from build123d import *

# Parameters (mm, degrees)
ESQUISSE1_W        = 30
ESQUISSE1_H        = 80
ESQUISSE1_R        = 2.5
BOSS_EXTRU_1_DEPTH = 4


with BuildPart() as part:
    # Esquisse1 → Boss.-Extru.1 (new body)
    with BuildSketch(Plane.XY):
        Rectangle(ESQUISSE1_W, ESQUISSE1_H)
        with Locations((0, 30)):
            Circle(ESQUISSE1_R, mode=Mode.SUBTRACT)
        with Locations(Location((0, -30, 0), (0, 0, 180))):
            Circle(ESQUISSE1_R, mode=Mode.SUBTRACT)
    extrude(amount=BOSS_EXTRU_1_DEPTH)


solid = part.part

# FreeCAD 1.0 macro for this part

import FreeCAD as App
import Part
import Sketcher
from FreeCAD import Vector


def add_polygon(sketch, points):
    """Adds a closed chain of lines whose ends are joined by coincident constraints."""
    first, n = sketch.GeometryCount, len(points)
    for a, b in zip(points, points[1:] + points[:1]):
        sketch.addGeometry(Part.LineSegment(App.Vector(*a, 0), App.Vector(*b, 0)), False)
    for i in range(n):
        sketch.addConstraint(Sketcher.Constraint("Coincident", first + i, 2, first + (i + 1) % n, 1))

doc = App.newDocument("Part")
body = doc.addObject("PartDesign::Body", "Body")

# Sketch on XY plane
sketch1 = body.newObject("Sketcher::SketchObject", "Sketch")
sketch1.AttachmentSupport = (doc.getObject("XY_Plane"), [""])
sketch1.MapMode = "FlatFace"
add_polygon(sketch1, [(-15, 40), (-15, -40), (15, -40), (15, 40)])  # lines 0-3
sketch1.addGeometry(Part.Circle(Vector(0, -30, 0), Vector(0, 0, 1), 2.5), False)  # 4
sketch1.addGeometry(Part.Circle(Vector(0, 30, 0), Vector(0, 0, 1), 2.5), False)  # 5
sketch1.addConstraint(Sketcher.Constraint("Vertical", 0))
sketch1.addConstraint(Sketcher.Constraint("Horizontal", 1))
sketch1.addConstraint(Sketcher.Constraint("Vertical", 2))
sketch1.addConstraint(Sketcher.Constraint("Horizontal", 3))
sketch1.addConstraint(Sketcher.Constraint("Equal", 4, 5))
sketch1.addConstraint(Sketcher.Constraint("Symmetric", 4, 3, 5, 3, -1, 1))
sketch1.addConstraint(Sketcher.Constraint("Symmetric", 0, 2, 2, 2, -1, 1))
sketch1.addConstraint(Sketcher.Constraint("PointOnObject", 4, 3, -2))
sketch1.addConstraint(Sketcher.Constraint("Diameter", 4, 5.0))
sketch1.addConstraint(Sketcher.Constraint("DistanceX", 1, 1, 1, 2, 30.0))
sketch1.addConstraint(Sketcher.Constraint("DistanceY", 0, 2, 0, 1, 80.0))
sketch1.addConstraint(Sketcher.Constraint("DistanceY", 4, 3, -1, 1, 30.0))
pad1 = body.newObject("PartDesign::Pad", "Pad")
pad1.Profile = sketch1
pad1.Length = 4

doc.recompute()
